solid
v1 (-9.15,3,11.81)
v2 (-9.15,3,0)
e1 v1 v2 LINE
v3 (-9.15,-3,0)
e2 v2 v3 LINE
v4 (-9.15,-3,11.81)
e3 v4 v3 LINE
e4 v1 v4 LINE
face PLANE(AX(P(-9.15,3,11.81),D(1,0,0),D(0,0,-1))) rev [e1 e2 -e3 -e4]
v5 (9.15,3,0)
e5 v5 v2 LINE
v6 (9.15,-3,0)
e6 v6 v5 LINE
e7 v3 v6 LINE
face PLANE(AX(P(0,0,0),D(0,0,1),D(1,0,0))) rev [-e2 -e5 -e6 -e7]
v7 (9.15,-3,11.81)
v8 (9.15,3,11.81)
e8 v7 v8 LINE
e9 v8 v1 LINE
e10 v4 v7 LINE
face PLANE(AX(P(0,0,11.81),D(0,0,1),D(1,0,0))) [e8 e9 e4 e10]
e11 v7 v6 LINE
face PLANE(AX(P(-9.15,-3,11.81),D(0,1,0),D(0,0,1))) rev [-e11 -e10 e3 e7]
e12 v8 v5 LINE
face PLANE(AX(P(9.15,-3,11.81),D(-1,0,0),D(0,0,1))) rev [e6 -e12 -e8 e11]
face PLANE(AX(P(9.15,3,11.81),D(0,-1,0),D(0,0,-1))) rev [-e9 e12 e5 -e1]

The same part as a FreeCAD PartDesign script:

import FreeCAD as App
import Part
import Sketcher
Q = App.Units.Quantity


def add_polygon(sketch, points):
    """Adds a closed chain of lines whose ends are joined by coincident constraints."""
    first, n = sketch.GeometryCount, len(points)
    for a, b in zip(points, points[1:] + points[:1]):
        sketch.addGeometry(Part.LineSegment(App.Vector(*a, 0), App.Vector(*b, 0)), False)
    for i in range(n):
        sketch.addConstraint(Sketcher.Constraint("Coincident", first + i, 2, first + (i + 1) % n, 1))

doc = App.newDocument("Part")
body = doc.addObject("PartDesign::Body", "Body")

# Sketch on XY plane
sketch1 = body.newObject("Sketcher::SketchObject", "Sketch")
sketch1.AttachmentSupport = (doc.getObject("XY_Plane"), [""])
sketch1.MapMode = "FlatFace"
add_polygon(sketch1, [(-9, 3), (-9, -3), (9, -3), (9, 3)])  # lines 0-3
sketch1.addConstraint([
    Sketcher.Constraint("Vertical", 0),
    Sketcher.Constraint("Horizontal", 1),
    Sketcher.Constraint("Vertical", 2),
    Sketcher.Constraint("Horizontal", 3),
    Sketcher.Constraint("Symmetric", 0, 2, 2, 2, -1, 1),
    Sketcher.Constraint("DistanceY", 0, 2, 0, 1, Q("6 mm")),
    Sketcher.Constraint("DistanceX", 1, 1, 1, 2, Q("18.3 mm")),
])
pad1 = body.newObject("PartDesign::Pad", "Pad")
pad1.Profile = sketch1
pad1.Length = 11.81

doc.recompute()
